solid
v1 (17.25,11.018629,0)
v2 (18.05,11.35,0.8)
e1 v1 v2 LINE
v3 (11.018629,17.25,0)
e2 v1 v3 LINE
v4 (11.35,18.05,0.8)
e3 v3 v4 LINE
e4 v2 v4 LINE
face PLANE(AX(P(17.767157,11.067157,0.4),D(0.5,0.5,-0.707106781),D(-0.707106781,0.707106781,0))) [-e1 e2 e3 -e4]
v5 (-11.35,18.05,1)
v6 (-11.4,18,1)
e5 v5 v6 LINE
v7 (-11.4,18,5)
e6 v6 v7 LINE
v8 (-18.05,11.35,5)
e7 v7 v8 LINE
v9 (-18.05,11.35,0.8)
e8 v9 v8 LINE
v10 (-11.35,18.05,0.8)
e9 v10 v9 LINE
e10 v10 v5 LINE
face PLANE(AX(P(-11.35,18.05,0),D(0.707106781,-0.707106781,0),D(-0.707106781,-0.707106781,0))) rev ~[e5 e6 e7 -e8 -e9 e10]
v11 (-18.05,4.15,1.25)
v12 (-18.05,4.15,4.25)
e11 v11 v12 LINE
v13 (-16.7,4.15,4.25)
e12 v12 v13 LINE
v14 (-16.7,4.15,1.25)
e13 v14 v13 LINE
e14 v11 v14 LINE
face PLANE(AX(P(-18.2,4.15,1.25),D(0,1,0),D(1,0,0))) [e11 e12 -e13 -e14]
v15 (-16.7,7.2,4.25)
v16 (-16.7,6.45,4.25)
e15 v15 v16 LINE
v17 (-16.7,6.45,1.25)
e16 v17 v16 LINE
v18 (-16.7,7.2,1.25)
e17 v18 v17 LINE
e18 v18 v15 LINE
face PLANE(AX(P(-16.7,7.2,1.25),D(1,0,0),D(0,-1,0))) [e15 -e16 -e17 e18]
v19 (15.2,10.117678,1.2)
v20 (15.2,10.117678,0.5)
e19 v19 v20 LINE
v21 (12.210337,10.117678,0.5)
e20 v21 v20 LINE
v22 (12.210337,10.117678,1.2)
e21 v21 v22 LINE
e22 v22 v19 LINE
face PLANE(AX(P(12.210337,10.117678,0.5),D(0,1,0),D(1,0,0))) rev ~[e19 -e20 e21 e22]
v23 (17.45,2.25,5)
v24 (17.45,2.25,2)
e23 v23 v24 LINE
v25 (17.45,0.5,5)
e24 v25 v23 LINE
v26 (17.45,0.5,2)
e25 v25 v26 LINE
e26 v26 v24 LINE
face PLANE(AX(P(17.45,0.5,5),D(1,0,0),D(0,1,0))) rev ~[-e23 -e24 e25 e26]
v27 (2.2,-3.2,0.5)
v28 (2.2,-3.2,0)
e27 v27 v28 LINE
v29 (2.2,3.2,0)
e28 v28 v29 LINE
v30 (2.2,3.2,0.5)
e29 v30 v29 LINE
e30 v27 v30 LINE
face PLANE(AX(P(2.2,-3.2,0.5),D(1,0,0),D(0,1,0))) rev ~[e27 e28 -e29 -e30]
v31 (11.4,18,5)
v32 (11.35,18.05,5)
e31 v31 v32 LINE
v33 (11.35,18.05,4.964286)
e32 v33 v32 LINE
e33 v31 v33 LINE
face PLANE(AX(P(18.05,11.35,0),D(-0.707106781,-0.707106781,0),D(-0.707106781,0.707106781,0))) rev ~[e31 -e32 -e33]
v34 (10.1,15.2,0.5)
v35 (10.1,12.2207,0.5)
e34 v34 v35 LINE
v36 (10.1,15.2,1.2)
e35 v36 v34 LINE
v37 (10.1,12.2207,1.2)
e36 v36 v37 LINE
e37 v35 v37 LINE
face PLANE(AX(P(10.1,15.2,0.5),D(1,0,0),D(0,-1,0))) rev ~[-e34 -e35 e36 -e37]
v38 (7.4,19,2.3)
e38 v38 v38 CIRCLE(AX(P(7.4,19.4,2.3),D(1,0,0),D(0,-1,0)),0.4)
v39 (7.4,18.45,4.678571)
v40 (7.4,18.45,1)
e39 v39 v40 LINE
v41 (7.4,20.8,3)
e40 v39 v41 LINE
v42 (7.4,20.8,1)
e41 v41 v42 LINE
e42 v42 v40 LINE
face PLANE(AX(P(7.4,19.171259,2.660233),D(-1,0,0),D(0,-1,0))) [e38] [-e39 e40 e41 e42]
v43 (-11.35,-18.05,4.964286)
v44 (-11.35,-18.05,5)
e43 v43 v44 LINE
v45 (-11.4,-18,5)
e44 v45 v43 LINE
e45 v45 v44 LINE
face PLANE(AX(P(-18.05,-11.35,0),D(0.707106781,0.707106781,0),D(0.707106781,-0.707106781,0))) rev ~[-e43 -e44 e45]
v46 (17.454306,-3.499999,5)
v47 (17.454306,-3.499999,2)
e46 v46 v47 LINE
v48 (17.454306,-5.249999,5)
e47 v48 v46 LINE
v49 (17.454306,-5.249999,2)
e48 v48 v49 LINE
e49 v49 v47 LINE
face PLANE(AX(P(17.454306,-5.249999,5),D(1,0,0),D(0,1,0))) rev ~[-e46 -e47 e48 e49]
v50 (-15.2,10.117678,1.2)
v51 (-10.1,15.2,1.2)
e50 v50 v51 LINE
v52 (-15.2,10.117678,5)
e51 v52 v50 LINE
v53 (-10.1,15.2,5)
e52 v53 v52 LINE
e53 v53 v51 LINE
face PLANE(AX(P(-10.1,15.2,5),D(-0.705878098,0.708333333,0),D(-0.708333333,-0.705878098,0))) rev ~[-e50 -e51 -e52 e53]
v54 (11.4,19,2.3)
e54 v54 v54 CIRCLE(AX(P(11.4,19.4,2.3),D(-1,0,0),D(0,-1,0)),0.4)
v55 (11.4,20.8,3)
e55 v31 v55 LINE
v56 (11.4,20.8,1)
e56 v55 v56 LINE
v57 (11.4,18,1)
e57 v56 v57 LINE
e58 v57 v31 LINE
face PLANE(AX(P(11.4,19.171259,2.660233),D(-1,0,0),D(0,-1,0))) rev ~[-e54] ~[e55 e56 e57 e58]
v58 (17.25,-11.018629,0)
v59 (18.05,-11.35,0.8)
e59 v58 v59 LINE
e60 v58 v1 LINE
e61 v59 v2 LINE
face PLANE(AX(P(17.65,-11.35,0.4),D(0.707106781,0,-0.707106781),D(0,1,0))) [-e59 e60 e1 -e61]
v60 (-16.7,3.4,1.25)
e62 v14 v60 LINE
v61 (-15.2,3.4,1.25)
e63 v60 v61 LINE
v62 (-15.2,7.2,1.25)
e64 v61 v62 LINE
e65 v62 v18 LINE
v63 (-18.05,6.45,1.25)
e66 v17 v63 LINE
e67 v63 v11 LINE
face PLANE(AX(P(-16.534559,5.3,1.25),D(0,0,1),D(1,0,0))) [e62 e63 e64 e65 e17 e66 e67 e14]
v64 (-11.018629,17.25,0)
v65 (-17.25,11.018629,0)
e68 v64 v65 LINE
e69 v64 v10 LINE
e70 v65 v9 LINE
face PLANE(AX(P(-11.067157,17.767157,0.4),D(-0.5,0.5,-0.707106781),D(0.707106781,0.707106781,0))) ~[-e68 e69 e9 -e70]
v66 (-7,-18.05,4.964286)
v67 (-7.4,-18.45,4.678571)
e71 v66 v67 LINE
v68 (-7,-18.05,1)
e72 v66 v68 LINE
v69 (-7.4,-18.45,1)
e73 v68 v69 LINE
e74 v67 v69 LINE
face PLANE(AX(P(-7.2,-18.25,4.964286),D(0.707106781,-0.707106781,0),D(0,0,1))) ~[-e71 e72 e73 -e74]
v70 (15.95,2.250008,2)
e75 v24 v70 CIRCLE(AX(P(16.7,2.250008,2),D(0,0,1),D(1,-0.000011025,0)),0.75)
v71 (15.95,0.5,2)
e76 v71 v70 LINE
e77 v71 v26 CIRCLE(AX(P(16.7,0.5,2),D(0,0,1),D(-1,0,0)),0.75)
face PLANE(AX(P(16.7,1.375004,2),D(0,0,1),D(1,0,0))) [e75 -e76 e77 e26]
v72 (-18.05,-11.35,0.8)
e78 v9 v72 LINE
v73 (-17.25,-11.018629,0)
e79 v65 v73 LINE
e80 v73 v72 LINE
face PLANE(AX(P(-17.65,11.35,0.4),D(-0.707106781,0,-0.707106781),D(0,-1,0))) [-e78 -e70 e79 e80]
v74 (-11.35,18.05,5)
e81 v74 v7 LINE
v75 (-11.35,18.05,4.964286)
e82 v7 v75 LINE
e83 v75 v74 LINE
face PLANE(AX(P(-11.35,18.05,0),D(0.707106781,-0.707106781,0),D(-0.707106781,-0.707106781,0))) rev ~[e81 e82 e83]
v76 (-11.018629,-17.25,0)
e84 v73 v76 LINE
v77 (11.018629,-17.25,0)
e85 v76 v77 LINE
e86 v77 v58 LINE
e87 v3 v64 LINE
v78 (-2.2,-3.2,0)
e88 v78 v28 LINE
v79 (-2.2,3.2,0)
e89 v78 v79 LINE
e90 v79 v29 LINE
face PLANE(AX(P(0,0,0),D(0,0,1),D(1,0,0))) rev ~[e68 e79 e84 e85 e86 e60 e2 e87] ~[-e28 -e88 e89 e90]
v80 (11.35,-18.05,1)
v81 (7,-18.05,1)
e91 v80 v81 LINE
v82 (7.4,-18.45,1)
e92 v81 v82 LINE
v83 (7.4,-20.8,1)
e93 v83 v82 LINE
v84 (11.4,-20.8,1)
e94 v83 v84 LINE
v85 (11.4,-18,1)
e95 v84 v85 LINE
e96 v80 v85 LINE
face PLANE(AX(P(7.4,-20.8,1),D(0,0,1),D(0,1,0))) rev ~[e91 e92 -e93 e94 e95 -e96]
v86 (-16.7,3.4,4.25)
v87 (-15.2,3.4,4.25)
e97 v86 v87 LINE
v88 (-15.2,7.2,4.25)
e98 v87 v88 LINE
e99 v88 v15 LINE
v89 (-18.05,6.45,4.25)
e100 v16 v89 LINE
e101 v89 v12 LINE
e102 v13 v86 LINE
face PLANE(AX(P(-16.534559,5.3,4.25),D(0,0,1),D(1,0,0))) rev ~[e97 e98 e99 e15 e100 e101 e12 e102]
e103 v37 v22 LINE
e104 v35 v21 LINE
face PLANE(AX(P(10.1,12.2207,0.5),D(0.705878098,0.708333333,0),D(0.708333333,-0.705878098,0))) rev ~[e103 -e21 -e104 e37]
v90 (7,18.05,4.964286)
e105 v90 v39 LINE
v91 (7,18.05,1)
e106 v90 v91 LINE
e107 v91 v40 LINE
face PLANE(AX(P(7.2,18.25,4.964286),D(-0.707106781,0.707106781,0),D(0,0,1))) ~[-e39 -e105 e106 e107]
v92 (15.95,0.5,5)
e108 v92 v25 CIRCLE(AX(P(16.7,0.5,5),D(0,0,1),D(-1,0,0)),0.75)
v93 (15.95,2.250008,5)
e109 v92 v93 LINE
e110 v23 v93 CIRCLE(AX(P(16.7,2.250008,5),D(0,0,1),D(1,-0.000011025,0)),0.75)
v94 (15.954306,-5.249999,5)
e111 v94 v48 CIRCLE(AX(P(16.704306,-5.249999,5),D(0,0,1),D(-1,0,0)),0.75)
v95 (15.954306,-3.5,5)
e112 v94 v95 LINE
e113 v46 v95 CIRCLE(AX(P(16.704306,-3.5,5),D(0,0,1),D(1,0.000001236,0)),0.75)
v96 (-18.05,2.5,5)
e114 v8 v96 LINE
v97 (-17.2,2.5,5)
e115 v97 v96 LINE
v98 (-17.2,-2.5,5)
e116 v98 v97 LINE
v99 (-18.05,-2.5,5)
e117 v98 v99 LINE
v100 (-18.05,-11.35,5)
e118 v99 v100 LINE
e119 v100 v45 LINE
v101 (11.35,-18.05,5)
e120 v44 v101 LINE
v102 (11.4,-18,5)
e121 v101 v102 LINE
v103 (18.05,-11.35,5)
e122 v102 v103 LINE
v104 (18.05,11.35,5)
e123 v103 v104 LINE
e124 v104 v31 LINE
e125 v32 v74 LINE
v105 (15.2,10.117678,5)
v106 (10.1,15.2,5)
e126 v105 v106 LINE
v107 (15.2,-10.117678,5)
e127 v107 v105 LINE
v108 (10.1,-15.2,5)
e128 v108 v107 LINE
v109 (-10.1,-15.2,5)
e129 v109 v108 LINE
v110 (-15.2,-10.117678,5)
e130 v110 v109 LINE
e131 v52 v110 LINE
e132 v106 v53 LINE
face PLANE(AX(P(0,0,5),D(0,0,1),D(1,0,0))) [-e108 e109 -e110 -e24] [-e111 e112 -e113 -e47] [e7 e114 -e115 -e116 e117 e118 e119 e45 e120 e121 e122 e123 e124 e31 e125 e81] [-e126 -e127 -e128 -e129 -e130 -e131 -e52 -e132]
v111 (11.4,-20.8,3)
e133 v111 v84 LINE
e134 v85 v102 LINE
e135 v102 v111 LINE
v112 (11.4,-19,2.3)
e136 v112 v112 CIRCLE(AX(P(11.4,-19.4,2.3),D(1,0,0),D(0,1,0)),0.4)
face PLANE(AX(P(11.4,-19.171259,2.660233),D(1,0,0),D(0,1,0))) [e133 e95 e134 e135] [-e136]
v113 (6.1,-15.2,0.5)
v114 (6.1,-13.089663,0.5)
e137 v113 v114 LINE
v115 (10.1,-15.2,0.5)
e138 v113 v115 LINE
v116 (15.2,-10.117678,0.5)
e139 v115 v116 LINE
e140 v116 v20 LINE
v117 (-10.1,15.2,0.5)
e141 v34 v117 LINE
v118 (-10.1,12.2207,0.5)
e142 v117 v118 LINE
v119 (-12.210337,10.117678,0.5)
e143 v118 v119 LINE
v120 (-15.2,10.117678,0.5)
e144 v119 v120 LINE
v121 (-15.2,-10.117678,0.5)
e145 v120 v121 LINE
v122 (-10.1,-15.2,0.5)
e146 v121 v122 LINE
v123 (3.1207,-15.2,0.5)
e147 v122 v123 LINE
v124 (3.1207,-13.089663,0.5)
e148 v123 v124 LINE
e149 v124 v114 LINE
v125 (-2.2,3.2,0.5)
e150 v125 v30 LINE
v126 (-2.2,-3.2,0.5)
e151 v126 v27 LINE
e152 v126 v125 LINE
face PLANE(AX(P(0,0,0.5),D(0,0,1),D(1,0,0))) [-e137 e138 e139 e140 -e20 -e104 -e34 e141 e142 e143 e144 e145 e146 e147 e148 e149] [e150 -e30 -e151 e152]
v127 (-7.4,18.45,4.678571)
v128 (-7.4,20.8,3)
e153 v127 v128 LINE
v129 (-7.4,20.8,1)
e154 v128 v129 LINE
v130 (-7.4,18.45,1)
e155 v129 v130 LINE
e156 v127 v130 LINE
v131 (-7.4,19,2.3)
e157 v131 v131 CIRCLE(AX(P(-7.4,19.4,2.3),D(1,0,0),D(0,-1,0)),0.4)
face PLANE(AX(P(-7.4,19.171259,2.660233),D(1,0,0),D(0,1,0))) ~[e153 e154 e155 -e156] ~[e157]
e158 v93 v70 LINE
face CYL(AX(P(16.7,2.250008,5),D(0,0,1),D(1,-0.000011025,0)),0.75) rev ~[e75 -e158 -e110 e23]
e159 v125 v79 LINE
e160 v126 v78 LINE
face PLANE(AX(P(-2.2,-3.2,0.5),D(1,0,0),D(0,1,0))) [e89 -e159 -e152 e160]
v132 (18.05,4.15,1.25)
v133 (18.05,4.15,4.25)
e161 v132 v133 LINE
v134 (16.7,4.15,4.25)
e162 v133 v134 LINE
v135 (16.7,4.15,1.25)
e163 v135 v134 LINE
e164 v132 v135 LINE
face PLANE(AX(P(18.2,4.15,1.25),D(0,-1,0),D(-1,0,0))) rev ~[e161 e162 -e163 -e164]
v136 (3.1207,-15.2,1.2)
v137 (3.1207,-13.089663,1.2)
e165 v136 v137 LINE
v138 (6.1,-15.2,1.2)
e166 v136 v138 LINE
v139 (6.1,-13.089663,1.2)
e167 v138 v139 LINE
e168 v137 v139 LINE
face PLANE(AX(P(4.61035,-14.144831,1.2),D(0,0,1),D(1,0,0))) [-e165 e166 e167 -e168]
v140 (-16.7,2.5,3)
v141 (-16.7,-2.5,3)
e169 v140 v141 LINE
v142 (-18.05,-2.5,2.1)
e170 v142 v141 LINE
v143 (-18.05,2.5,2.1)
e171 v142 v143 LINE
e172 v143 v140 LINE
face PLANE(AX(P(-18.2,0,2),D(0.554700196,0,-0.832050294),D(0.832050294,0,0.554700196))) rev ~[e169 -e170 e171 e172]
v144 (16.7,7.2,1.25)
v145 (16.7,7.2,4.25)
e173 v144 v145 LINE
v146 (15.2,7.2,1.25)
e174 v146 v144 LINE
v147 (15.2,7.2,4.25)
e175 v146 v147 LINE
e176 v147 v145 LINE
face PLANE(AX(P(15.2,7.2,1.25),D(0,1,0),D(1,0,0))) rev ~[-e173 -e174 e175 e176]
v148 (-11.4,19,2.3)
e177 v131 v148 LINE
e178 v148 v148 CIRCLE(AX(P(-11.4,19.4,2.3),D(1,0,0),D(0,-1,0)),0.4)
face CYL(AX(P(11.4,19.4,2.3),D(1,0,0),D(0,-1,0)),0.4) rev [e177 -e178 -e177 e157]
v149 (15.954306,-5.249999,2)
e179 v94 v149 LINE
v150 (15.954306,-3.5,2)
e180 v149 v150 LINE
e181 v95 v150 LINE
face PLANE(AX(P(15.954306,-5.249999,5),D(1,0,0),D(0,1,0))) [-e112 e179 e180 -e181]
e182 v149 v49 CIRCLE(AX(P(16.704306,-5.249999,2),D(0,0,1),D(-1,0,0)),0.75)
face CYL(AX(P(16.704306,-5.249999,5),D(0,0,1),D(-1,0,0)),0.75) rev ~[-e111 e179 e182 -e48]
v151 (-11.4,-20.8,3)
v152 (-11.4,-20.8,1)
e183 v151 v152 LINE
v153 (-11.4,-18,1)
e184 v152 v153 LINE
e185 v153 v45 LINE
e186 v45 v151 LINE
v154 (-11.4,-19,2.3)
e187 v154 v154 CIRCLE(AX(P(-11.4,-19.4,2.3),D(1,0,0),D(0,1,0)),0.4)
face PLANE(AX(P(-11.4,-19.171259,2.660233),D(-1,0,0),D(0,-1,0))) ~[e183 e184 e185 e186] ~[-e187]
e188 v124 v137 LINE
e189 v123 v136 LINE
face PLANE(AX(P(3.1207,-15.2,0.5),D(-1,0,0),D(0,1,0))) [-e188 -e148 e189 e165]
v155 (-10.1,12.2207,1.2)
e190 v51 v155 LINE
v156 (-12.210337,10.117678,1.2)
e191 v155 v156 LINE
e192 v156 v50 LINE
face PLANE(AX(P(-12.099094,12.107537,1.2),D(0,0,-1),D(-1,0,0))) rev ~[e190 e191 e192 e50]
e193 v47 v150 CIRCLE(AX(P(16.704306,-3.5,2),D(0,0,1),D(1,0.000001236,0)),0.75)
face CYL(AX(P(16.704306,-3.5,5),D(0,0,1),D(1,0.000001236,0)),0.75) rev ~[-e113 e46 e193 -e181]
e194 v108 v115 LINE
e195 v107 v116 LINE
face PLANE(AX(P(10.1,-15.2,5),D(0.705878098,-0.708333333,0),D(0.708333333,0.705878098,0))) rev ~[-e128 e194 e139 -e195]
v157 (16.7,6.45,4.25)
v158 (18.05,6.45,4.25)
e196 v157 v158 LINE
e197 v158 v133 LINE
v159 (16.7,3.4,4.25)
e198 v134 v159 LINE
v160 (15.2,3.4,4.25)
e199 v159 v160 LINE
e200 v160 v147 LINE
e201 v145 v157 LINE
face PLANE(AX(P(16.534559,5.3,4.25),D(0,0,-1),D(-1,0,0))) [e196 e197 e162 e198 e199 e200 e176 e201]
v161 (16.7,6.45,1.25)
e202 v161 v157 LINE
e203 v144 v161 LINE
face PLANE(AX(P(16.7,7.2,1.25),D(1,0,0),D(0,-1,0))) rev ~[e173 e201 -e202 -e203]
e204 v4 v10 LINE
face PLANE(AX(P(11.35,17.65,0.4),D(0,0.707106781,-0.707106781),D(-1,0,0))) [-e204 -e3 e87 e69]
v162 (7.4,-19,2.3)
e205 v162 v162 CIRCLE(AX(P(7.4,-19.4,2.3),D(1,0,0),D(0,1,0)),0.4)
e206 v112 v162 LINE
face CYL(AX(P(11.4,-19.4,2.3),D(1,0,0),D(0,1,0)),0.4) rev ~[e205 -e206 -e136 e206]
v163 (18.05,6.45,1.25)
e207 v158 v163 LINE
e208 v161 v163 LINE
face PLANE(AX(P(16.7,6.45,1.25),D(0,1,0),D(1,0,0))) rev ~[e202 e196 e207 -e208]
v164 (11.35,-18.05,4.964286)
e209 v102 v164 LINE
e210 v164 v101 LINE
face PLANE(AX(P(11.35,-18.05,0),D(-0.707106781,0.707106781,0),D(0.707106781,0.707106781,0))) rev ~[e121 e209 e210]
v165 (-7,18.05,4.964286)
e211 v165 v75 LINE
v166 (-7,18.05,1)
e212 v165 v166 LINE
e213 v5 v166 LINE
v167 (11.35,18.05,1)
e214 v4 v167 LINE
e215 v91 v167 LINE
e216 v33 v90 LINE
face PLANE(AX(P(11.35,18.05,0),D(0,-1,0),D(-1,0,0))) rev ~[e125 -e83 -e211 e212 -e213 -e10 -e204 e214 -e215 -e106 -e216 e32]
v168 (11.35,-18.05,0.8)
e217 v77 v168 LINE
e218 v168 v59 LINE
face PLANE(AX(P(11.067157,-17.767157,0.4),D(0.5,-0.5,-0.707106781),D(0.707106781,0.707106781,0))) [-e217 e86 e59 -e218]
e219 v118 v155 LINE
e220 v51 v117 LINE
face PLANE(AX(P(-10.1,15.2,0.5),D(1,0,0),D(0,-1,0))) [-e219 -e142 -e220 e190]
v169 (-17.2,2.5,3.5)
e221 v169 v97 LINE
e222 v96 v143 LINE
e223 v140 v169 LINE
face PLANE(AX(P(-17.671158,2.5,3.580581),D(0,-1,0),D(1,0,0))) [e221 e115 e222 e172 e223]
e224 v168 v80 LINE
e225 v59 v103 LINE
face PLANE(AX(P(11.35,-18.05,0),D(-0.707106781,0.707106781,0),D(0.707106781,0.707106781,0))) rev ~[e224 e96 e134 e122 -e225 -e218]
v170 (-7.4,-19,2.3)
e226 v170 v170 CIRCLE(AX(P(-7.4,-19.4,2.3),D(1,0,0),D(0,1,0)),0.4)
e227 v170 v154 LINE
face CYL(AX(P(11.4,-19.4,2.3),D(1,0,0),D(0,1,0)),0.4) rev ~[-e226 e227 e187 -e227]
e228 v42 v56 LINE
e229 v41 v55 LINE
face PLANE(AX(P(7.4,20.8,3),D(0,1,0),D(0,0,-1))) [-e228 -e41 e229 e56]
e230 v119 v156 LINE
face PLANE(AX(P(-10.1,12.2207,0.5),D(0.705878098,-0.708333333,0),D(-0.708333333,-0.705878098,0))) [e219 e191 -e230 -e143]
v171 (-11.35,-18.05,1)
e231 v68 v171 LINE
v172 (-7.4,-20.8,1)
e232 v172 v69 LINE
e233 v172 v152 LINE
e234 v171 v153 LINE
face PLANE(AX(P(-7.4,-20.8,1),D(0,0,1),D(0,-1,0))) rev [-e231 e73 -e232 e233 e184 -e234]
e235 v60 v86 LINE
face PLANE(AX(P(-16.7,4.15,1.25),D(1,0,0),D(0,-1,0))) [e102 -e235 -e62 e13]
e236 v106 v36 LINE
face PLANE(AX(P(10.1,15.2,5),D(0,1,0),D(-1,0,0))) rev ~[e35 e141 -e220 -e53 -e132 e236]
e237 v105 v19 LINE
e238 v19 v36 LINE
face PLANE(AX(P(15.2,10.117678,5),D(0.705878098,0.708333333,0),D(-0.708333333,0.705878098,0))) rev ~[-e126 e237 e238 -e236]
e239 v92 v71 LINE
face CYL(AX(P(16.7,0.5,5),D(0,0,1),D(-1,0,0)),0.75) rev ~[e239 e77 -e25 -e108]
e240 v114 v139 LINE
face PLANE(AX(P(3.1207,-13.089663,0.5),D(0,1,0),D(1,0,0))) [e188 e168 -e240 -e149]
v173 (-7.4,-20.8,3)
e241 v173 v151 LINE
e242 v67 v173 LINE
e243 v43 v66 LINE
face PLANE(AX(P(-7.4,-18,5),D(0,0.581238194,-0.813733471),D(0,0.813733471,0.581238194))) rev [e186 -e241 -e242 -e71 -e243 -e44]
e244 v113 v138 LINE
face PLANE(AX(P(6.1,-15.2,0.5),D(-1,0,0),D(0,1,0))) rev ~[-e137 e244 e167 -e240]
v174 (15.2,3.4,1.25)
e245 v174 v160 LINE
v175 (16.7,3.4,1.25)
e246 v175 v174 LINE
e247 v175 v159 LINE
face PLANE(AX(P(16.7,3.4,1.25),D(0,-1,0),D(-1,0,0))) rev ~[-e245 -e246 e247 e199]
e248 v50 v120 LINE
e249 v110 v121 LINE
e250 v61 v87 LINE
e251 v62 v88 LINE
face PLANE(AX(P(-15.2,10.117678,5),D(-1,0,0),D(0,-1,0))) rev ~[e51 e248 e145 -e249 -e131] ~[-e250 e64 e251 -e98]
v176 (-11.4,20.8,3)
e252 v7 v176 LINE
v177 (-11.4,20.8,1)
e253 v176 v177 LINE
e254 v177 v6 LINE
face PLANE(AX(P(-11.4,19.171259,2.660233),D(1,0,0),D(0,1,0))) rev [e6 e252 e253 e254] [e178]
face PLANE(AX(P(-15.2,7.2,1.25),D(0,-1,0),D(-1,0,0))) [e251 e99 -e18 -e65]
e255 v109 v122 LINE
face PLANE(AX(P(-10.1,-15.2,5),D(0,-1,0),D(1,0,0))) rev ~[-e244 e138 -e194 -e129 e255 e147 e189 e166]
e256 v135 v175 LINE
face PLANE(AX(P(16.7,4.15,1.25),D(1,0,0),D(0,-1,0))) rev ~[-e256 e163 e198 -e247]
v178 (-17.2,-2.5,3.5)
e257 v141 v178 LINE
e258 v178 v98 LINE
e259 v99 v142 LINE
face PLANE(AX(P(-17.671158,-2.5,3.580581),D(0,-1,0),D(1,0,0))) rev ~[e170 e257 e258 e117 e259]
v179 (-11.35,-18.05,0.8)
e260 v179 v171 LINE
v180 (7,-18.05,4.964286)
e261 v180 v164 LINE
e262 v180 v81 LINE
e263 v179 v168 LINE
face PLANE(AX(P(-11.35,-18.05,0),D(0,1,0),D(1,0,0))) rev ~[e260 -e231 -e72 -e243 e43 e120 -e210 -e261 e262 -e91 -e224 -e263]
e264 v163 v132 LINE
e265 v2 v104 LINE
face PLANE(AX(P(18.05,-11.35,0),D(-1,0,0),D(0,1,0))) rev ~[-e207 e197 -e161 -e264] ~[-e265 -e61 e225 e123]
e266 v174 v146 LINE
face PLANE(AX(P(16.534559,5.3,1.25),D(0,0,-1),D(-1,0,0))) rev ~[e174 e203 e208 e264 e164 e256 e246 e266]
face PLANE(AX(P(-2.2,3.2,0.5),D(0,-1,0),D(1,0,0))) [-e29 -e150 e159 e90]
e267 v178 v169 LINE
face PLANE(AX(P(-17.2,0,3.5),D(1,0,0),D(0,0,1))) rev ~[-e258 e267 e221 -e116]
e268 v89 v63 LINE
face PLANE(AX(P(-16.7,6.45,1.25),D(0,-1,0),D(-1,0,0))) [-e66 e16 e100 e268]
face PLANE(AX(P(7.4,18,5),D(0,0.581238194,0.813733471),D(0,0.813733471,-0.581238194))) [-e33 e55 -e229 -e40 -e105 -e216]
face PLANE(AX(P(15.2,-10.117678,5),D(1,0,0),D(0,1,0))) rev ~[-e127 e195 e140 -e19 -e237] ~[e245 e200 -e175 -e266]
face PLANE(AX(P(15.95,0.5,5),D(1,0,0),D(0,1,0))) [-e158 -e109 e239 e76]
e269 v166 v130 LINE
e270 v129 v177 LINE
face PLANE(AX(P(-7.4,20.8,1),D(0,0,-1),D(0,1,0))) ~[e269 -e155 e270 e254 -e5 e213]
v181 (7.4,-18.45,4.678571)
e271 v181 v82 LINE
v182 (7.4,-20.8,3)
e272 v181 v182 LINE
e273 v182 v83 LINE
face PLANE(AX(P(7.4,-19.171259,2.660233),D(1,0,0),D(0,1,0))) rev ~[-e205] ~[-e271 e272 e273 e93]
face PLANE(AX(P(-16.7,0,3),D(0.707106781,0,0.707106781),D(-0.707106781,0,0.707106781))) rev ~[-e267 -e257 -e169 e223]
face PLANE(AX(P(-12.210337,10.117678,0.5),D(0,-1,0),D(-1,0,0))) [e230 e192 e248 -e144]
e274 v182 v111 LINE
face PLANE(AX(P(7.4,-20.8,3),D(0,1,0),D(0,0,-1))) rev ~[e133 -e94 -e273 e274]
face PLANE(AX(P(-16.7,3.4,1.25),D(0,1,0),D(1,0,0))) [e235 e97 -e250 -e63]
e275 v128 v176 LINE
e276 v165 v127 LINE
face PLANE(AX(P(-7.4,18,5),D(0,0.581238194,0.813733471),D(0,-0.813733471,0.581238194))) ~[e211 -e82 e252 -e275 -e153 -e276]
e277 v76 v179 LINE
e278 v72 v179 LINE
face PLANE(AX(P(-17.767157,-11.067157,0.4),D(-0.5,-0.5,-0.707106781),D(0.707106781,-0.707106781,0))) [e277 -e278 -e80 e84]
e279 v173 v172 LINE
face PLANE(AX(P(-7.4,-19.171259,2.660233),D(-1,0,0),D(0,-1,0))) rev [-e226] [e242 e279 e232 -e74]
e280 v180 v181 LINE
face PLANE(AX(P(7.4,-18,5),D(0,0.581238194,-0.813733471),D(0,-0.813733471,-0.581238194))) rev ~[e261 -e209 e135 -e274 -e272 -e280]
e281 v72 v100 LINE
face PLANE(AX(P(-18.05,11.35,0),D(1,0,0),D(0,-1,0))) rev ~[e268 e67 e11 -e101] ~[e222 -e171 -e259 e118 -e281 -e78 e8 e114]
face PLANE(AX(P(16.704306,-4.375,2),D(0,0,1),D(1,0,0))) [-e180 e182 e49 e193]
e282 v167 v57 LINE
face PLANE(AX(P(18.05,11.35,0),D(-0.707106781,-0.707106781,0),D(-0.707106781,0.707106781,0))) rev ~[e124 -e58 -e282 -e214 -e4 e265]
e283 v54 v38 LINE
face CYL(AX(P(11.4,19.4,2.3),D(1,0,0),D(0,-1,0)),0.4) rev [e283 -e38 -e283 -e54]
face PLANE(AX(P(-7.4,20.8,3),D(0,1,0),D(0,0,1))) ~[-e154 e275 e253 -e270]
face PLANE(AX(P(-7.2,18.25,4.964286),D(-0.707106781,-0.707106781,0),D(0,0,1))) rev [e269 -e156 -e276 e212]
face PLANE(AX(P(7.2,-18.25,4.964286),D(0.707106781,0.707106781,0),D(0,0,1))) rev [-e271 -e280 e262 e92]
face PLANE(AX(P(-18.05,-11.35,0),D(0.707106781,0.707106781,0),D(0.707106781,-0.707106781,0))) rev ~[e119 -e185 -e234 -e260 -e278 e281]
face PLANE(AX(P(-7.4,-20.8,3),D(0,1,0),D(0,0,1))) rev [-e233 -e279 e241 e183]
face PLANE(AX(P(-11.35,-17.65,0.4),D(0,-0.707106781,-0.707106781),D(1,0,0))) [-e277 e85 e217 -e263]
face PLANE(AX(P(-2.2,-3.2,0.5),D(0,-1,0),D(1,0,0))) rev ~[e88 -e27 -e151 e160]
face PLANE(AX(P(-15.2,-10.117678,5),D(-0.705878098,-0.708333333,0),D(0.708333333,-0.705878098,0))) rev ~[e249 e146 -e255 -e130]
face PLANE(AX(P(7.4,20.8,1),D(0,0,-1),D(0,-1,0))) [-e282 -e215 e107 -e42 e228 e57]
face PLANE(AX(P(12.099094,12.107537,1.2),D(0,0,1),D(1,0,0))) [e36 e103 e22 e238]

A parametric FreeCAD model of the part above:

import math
import FreeCAD as App
import Part
import Sketcher
Q = App.Units.Quantity


def edges_at(feature, points):
    """Names of the edges that pass closest to the given points."""
    edges = feature.Shape.Edges
    near = lambda p: min(range(len(edges)), key=lambda i: edges[i].distToShape(Part.Vertex(*p))[0])
    return sorted({f"Edge{near(p) + 1}" for p in points})

doc = App.newDocument("Part")
body = doc.addObject("PartDesign::Body", "Body")

# Sketch on XY plane
sketch1 = body.newObject("Sketcher::SketchObject", "Sketch")
sketch1.AttachmentSupport = (doc.getObject("XY_Plane"), [""])
sketch1.MapMode = "FlatFace"
sketch1.addGeometry([
    Part.LineSegment(App.Vector(18, 11, 0), App.Vector(11, 18, 0)),  # 0
    Part.LineSegment(App.Vector(11, 18, 0), App.Vector(-11, 18, 0)),  # 1
    Part.LineSegment(App.Vector(-11, 18, 0), App.Vector(-18, 11, 0)),  # 2
    Part.LineSegment(App.Vector(-18, 11, 0), App.Vector(-18, -11, 0)),  # 3
    Part.LineSegment(App.Vector(-18, -11, 0), App.Vector(-11, -18, 0)),  # 4
    Part.LineSegment(App.Vector(-11, -18, 0), App.Vector(11, -18, 0)),  # 5
    Part.LineSegment(App.Vector(11, -18, 0), App.Vector(18, -11, 0)),  # 6
    Part.LineSegment(App.Vector(18, -11, 0), App.Vector(18, 11, 0)),  # 7
], False)
sketch1.addConstraint([
    Sketcher.Constraint("Coincident", 0, 2, 1, 1),
    Sketcher.Constraint("Coincident", 1, 2, 2, 1),
    Sketcher.Constraint("Coincident", 2, 2, 3, 1),
    Sketcher.Constraint("Coincident", 3, 2, 4, 1),
    Sketcher.Constraint("Coincident", 4, 2, 5, 1),
    Sketcher.Constraint("Coincident", 5, 2, 6, 1),
    Sketcher.Constraint("Coincident", 6, 2, 7, 1),
    Sketcher.Constraint("Coincident", 7, 2, 0, 1),
    Sketcher.Constraint("Horizontal", 1),
    Sketcher.Constraint("Vertical", 3),
    Sketcher.Constraint("Horizontal", 5),
    Sketcher.Constraint("Vertical", 7),
    Sketcher.Constraint("Symmetric", 0, 2, 4, 2, -1, 1),
    Sketcher.Constraint("Symmetric", 2, 2, 6, 2, -1, 1),
    Sketcher.Constraint("Perpendicular", 0, 2),
    Sketcher.Constraint("Perpendicular", 2, 4),
    Sketcher.Constraint("Perpendicular", 4, 6),
    Sketcher.Constraint("Horizontal", 3, 2, 6, 2),
    Sketcher.Constraint("Vertical", 1, 2, 4, 2),
    Sketcher.Constraint("Equal", 5, 3),
    Sketcher.Constraint("DistanceX", 1, 2, 1, 1, Q("22.7 mm")),
    Sketcher.Constraint("DistanceX", 2, 2, 1, 2, Q("6.7 mm")),
])
pad1 = body.newObject("PartDesign::Pad", "Pad")
pad1.Profile = sketch1
pad1.Length = 5

# Sketch on XY plane
sketch2 = body.newObject("Sketcher::SketchObject", "Sketch001")
sketch2.AttachmentSupport = (doc.getObject("XY_Plane"), [""])
sketch2.MapMode = "FlatFace"
sketch2.AttachmentOffset = App.Placement(App.Vector(0, 0, 5), App.Rotation())
sketch2.addGeometry([
    Part.LineSegment(App.Vector(-15, 10, 0), App.Vector(-15, -10, 0)),  # 0
    Part.LineSegment(App.Vector(-15, -10, 0), App.Vector(-10, -15, 0)),  # 1
    Part.LineSegment(App.Vector(-10, -15, 0), App.Vector(10, -15, 0)),  # 2
    Part.LineSegment(App.Vector(10, -15, 0), App.Vector(15, -10, 0)),  # 3
    Part.LineSegment(App.Vector(15, -10, 0), App.Vector(15, 10, 0)),  # 4
    Part.LineSegment(App.Vector(15, 10, 0), App.Vector(10, 15, 0)),  # 5
    Part.LineSegment(App.Vector(10, 15, 0), App.Vector(-10, 15, 0)),  # 6
    Part.LineSegment(App.Vector(-10, 15, 0), App.Vector(-15, 10, 0)),  # 7
], False)
sketch2.addConstraint([
    Sketcher.Constraint("Coincident", 0, 2, 1, 1),
    Sketcher.Constraint("Coincident", 1, 2, 2, 1),
    Sketcher.Constraint("Coincident", 2, 2, 3, 1),
    Sketcher.Constraint("Coincident", 3, 2, 4, 1),
    Sketcher.Constraint("Coincident", 4, 2, 5, 1),
    Sketcher.Constraint("Coincident", 5, 2, 6, 1),
    Sketcher.Constraint("Coincident", 6, 2, 7, 1),
    Sketcher.Constraint("Coincident", 7, 2, 0, 1),
    Sketcher.Constraint("Vertical", 0),
    Sketcher.Constraint("Horizontal", 2),
    Sketcher.Constraint("Vertical", 4),
    Sketcher.Constraint("Horizontal", 6),
    Sketcher.Constraint("Symmetric", 0, 2, 4, 2, -1, 1),
    Sketcher.Constraint("Symmetric", 1, 2, 5, 2, -1, 1),
    Sketcher.Constraint("Parallel", 3, 7),
    Sketcher.Constraint("Horizontal", 0, 2, 3, 2),
    Sketcher.Constraint("Horizontal", 4, 2, 7, 2),
    Sketcher.Constraint("Vertical", 2, 2, 5, 2),
    Sketcher.Constraint("DistanceX", 2, 1, 2, 2, Q("20.2 mm")),
    Sketcher.Constraint("Distance", 1, Q("7.2 mm")),
    Sketcher.Constraint("DistanceX", 0, 2, -1, 1, Q("15.2 mm")),
    Sketcher.Constraint("DistanceY", 1, 2, -1, 1, Q("15.2 mm")),
])
pocket1 = body.newObject("PartDesign::Pocket", "Pocket")
pocket1.Profile = sketch2
pocket1.Length = 4.5

# Sketch on XY plane
sketch3 = body.newObject("Sketcher::SketchObject", "Sketch002")
sketch3.AttachmentSupport = (doc.getObject("XY_Plane"), [""])
sketch3.MapMode = "FlatFace"
sketch3.AttachmentOffset = App.Placement(App.Vector(0, 0, 1.25), App.Rotation())
sketch3.addGeometry([
    Part.LineSegment(App.Vector(15.2, 7.2, 0), App.Vector(15.2, 3.4, 0)),  # 0
    Part.LineSegment(App.Vector(15.2, 3.4, 0), App.Vector(16.7, 3.4, 0)),  # 1
    Part.LineSegment(App.Vector(16.7, 3.4, 0), App.Vector(16.7, 4.2, 0)),  # 2
    Part.LineSegment(App.Vector(16.7, 4.2, 0), App.Vector(18.2, 4.2, 0)),  # 3
    Part.LineSegment(App.Vector(18.2, 4.2, 0), App.Vector(18.2, 6.5, 0)),  # 4
    Part.LineSegment(App.Vector(18.2, 6.5, 0), App.Vector(16.7, 6.5, 0)),  # 5
    Part.LineSegment(App.Vector(16.7, 6.5, 0), App.Vector(16.7, 7.2, 0)),  # 6
    Part.LineSegment(App.Vector(16.7, 7.2, 0), App.Vector(15.2, 7.2, 0)),  # 7
    Part.LineSegment(App.Vector(-15.2, 3.4, 0), App.Vector(-15.2, 7.2, 0)),  # 8
    Part.LineSegment(App.Vector(-15.2, 7.2, 0), App.Vector(-16.7, 7.2, 0)),  # 9
    Part.LineSegment(App.Vector(-16.7, 7.2, 0), App.Vector(-16.7, 6.5, 0)),  # 10
    Part.LineSegment(App.Vector(-16.7, 6.5, 0), App.Vector(-18.2, 6.5, 0)),  # 11
    Part.LineSegment(App.Vector(-18.2, 6.5, 0), App.Vector(-18.2, 4.2, 0)),  # 12
    Part.LineSegment(App.Vector(-18.2, 4.2, 0), App.Vector(-16.7, 4.2, 0)),  # 13
    Part.LineSegment(App.Vector(-16.7, 4.2, 0), App.Vector(-16.7, 3.4, 0)),  # 14
    Part.LineSegment(App.Vector(-16.7, 3.4, 0), App.Vector(-15.2, 3.4, 0)),  # 15
], False)
sketch3.addConstraint([
    Sketcher.Constraint("Coincident", 0, 2, 1, 1),
    Sketcher.Constraint("Coincident", 1, 2, 2, 1),
    Sketcher.Constraint("Coincident", 2, 2, 3, 1),
    Sketcher.Constraint("Coincident", 3, 2, 4, 1),
    Sketcher.Constraint("Coincident", 4, 2, 5, 1),
    Sketcher.Constraint("Coincident", 5, 2, 6, 1),
    Sketcher.Constraint("Coincident", 6, 2, 7, 1),
    Sketcher.Constraint("Coincident", 7, 2, 0, 1),
    Sketcher.Constraint("Coincident", 8, 2, 9, 1),
    Sketcher.Constraint("Coincident", 9, 2, 10, 1),
    Sketcher.Constraint("Coincident", 10, 2, 11, 1),
    Sketcher.Constraint("Coincident", 11, 2, 12, 1),
    Sketcher.Constraint("Coincident", 12, 2, 13, 1),
    Sketcher.Constraint("Coincident", 13, 2, 14, 1),
    Sketcher.Constraint("Coincident", 14, 2, 15, 1),
    Sketcher.Constraint("Coincident", 15, 2, 8, 1),
    Sketcher.Constraint("Vertical", 0),
    Sketcher.Constraint("Horizontal", 1),
    Sketcher.Constraint("Vertical", 2),
    Sketcher.Constraint("Horizontal", 3),
    Sketcher.Constraint("Vertical", 4),
    Sketcher.Constraint("Horizontal", 5),
    Sketcher.Constraint("Vertical", 6),
    Sketcher.Constraint("Horizontal", 7),
    Sketcher.Constraint("Vertical", 8),
    Sketcher.Constraint("Horizontal", 9),
    Sketcher.Constraint("Vertical", 10),
    Sketcher.Constraint("Horizontal", 11),
    Sketcher.Constraint("Vertical", 12),
    Sketcher.Constraint("Horizontal", 13),
    Sketcher.Constraint("Vertical", 14),
    Sketcher.Constraint("Horizontal", 15),
    Sketcher.Constraint("Symmetric", 7, 2, 8, 2, -2),
    Sketcher.Constraint("Symmetric", 5, 2, 10, 2, -2),
    Sketcher.Constraint("Symmetric", 3, 2, 12, 2, -2),
    Sketcher.Constraint("Symmetric", 1, 2, 14, 2, -2),
    Sketcher.Constraint("Vertical", 2, 2, 5, 2),
    Sketcher.Constraint("Equal", 1, 3),
    Sketcher.Constraint("Equal", 2, 6),
    Sketcher.Constraint("DistanceX", 1, 1, 1, 2, Q("1.5 mm")),
    Sketcher.Constraint("DistanceY", 0, 2, 0, 1, Q("3.8 mm")),
    Sketcher.Constraint("DistanceY", 4, 1, 4, 2, Q("2.3 mm")),
    Sketcher.Constraint("DistanceX", -1, 1, 0, 2, Q("15.2 mm")),
    Sketcher.Constraint("DistanceY", -1, 1, 0, 2, Q("3.4 mm")),
])
pocket2 = body.newObject("PartDesign::Pocket", "Pocket001")
pocket2.Profile = sketch3
pocket2.Length = 3
pocket2.Reversed = True

# Sketch on XY plane
sketch4 = body.newObject("Sketcher::SketchObject", "Sketch003")
sketch4.AttachmentSupport = (doc.getObject("XY_Plane"), [""])
sketch4.MapMode = "FlatFace"
sketch4.AttachmentOffset = App.Placement(App.Vector(0, 0, 0.5), App.Rotation())
sketch4.addGeometry([
    Part.LineSegment(App.Vector(-10.1, 12.2, 0), App.Vector(-10.1, 15.2, 0)),  # 0
    Part.LineSegment(App.Vector(-10.1, 15.2, 0), App.Vector(-15.2, 10.1, 0)),  # 1
    Part.LineSegment(App.Vector(-15.2, 10.1, 0), App.Vector(-12.2, 10.1, 0)),  # 2
    Part.LineSegment(App.Vector(-12.2, 10.1, 0), App.Vector(-10.1, 12.2, 0)),  # 3
    Part.LineSegment(App.Vector(12.2, 10.1, 0), App.Vector(15.2, 10.1, 0)),  # 4
    Part.LineSegment(App.Vector(15.2, 10.1, 0), App.Vector(10.1, 15.2, 0)),  # 5
    Part.LineSegment(App.Vector(10.1, 15.2, 0), App.Vector(10.1, 12.2, 0)),  # 6
    Part.LineSegment(App.Vector(10.1, 12.2, 0), App.Vector(12.2, 10.1, 0)),  # 7
    Part.LineSegment(App.Vector(3.1, -13.1, 0), App.Vector(3.1, -15.2, 0)),  # 8
    Part.LineSegment(App.Vector(3.1, -15.2, 0), App.Vector(6.1, -15.2, 0)),  # 9
    Part.LineSegment(App.Vector(6.1, -15.2, 0), App.Vector(6.1, -13.1, 0)),  # 10
    Part.LineSegment(App.Vector(6.1, -13.1, 0), App.Vector(3.1, -13.1, 0)),  # 11
], False)
sketch4.addConstraint([
    Sketcher.Constraint("Coincident", 0, 2, 1, 1),
    Sketcher.Constraint("Coincident", 1, 2, 2, 1),
    Sketcher.Constraint("Coincident", 2, 2, 3, 1),
    Sketcher.Constraint("Coincident", 3, 2, 0, 1),
    Sketcher.Constraint("Coincident", 4, 2, 5, 1),
    Sketcher.Constraint("Coincident", 5, 2, 6, 1),
    Sketcher.Constraint("Coincident", 6, 2, 7, 1),
    Sketcher.Constraint("Coincident", 7, 2, 4, 1),
    Sketcher.Constraint("Coincident", 8, 2, 9, 1),
    Sketcher.Constraint("Coincident", 9, 2, 10, 1),
    Sketcher.Constraint("Coincident", 10, 2, 11, 1),
    Sketcher.Constraint("Coincident", 11, 2, 8, 1),
    Sketcher.Constraint("Vertical", 0),
    Sketcher.Constraint("Horizontal", 2),
    Sketcher.Constraint("Horizontal", 4),
    Sketcher.Constraint("Vertical", 6),
    Sketcher.Constraint("Vertical", 8),
    Sketcher.Constraint("Horizontal", 9),
    Sketcher.Constraint("Vertical", 10),
    Sketcher.Constraint("Horizontal", 11),
    Sketcher.Constraint("Symmetric", 1, 2, 4, 2, -2),
    Sketcher.Constraint("Symmetric", 0, 2, 5, 2, -2),
    Sketcher.Constraint("Parallel", 1, 3),
    Sketcher.Constraint("Parallel", 5, 7),
    Sketcher.Constraint("Horizontal", 3, 2, 6, 2),
    Sketcher.Constraint("Equal", 11, 0),
    Sketcher.Constraint("DistanceX", 9, 2, 6, 2, Q("4 mm")),
    Sketcher.Constraint("Distance", 1, Q("7.2 mm")),
    Sketcher.Constraint("DistanceX", 0, 2, -1, 1, Q("10.1 mm")),
    Sketcher.Constraint("DistanceY", -1, 1, 0, 2, Q("15.2 mm")),
    Sketcher.Constraint("DistanceX", 1, 2, -1, 1, Q("15.2 mm")),
    Sketcher.Constraint("DistanceY", 8, 2, -1, 1, Q("15.2 mm")),
    Sketcher.Constraint("DistanceX", 9, 1, 9, 2, Q("2.9793 mm")),
    Sketcher.Constraint("DistanceY", 8, 2, 8, 1, Q("2.110337 mm")),
])
pad2 = body.newObject("PartDesign::Pad", "Pad001")
pad2.Profile = sketch4
pad2.Length = 0.7

# Sketch on XZ plane
sketch5 = body.newObject("Sketcher::SketchObject", "Sketch004")
sketch5.AttachmentSupport = (doc.getObject("XZ_Plane"), [""])
sketch5.MapMode = "FlatFace"
sketch5.addGeometry([
    Part.LineSegment(App.Vector(-18.2, 5, 0), App.Vector(-18.2, 2, 0)),  # 0
    Part.LineSegment(App.Vector(-18.2, 2, 0), App.Vector(-16.7, 3, 0)),  # 1
    Part.LineSegment(App.Vector(-16.7, 3, 0), App.Vector(-17.2, 3.5, 0)),  # 2
    Part.LineSegment(App.Vector(-17.2, 3.5, 0), App.Vector(-17.2, 5, 0)),  # 3
    Part.LineSegment(App.Vector(-17.2, 5, 0), App.Vector(-18.2, 5, 0)),  # 4
], False)
sketch5.addConstraint([
    Sketcher.Constraint("Coincident", 0, 2, 1, 1),
    Sketcher.Constraint("Coincident", 1, 2, 2, 1),
    Sketcher.Constraint("Coincident", 2, 2, 3, 1),
    Sketcher.Constraint("Coincident", 3, 2, 4, 1),
    Sketcher.Constraint("Coincident", 4, 2, 0, 1),
    Sketcher.Constraint("Vertical", 0),
    Sketcher.Constraint("Vertical", 3),
    Sketcher.Constraint("Horizontal", 4),
    Sketcher.Constraint("DistanceX", 4, 2, 4, 1, Q("1 mm")),
    Sketcher.Constraint("DistanceY", 0, 2, 0, 1, Q("3 mm")),
    Sketcher.Constraint("Angle", 2, Q("135 deg")),
    Sketcher.Constraint("DistanceY", 3, 1, 3, 2, Q("1.5 mm")),
    Sketcher.Constraint("DistanceY", -1, 1, 0, 2, Q("2 mm")),
    Sketcher.Constraint("DistanceY", -1, 1, 1, 2, Q("3 mm")),
    Sketcher.Constraint("DistanceX", 0, 2, -1, 1, Q("18.2 mm")),
])
pocket3 = body.newObject("PartDesign::Pocket", "Pocket002")
pocket3.Profile = sketch5
pocket3.Length = 5
pocket3.Midplane = True

# Sketch on XY plane
sketch6 = body.newObject("Sketcher::SketchObject", "Sketch005")
sketch6.AttachmentSupport = (doc.getObject("XY_Plane"), [""])
sketch6.MapMode = "FlatFace"
sketch6.AttachmentOffset = App.Placement(App.Vector(0, 0, 5), App.Rotation())
sketch6.addGeometry([
    Part.ArcOfCircle(Part.Circle(App.Vector(16.7, 0.5, 0), App.Vector(0, 0, 1), 0.8), math.radians(180), math.radians(360)),  # 0
    Part.LineSegment(App.Vector(17.4, 0.5, 0), App.Vector(17.4, 2.2, 0)),  # 1
    Part.ArcOfCircle(Part.Circle(App.Vector(16.7, 2.3, 0), App.Vector(0, 0, 1), 0.8), math.radians(0), math.radians(180)),  # 2
    Part.LineSegment(App.Vector(15.9, 2.3, 0), App.Vector(15.9, 0.5, 0)),  # 3
    Part.ArcOfCircle(Part.Circle(App.Vector(16.7, -5.2, 0), App.Vector(0, 0, 1), 0.8), math.radians(180), math.radians(360)),  # 4
    Part.LineSegment(App.Vector(17.5, -5.2, 0), App.Vector(17.5, -3.5, 0)),  # 5
    Part.ArcOfCircle(Part.Circle(App.Vector(16.7, -3.5, 0), App.Vector(0, 0, 1), 0.8), math.radians(0), math.radians(180)),  # 6
    Part.LineSegment(App.Vector(16, -3.5, 0), App.Vector(16, -5.2, 0)),  # 7
], False)
sketch6.addConstraint([
    Sketcher.Constraint("Tangent", 0, 2, 1, 1),
    Sketcher.Constraint("Coincident", 1, 2, 2, 1),
    Sketcher.Constraint("Tangent", 2, 2, 3, 1),
    Sketcher.Constraint("Tangent", 3, 2, 0, 1),
    Sketcher.Constraint("Tangent", 4, 2, 5, 1),
    Sketcher.Constraint("Tangent", 5, 2, 6, 1),
    Sketcher.Constraint("Tangent", 6, 2, 7, 1),
    Sketcher.Constraint("Tangent", 7, 2, 4, 1),
    Sketcher.Constraint("Vertical", 1),
    Sketcher.Constraint("Vertical", 3),
    Sketcher.Constraint("Vertical", 5),
    Sketcher.Constraint("Vertical", 7),
    Sketcher.Constraint("Equal", 2, 4),
    Sketcher.Constraint("Equal", 1, 5),
    Sketcher.Constraint("Radius", 0, Q("0.75 mm")),
    Sketcher.Constraint("DistanceY", 6, 3, 0, 3, Q("4 mm")),
    Sketcher.Constraint("DistanceY", 1, 1, 1, 2, Q("1.75 mm")),
    Sketcher.Constraint("DistanceX", -1, 1, 0, 3, Q("16.7 mm")),
    Sketcher.Constraint("DistanceY", -1, 1, 0, 3, Q("0.5 mm")),
    Sketcher.Constraint("DistanceY", 3, 2, 3, 1, Q("1.750008 mm")),
    Sketcher.Constraint("DistanceX", -1, 1, 4, 3, Q("16.704306 mm")),
])
pocket4 = body.newObject("PartDesign::Pocket", "Pocket003")
pocket4.Profile = sketch6
pocket4.Length = 3

# Sketch on YZ plane
sketch7 = body.newObject("Sketcher::SketchObject", "Sketch006")
sketch7.AttachmentSupport = (doc.getObject("YZ_Plane"), [""])
sketch7.MapMode = "FlatFace"
sketch7.AttachmentOffset = App.Placement(App.Vector(0, 0, 7.4), App.Rotation())
sketch7.addGeometry([
    Part.LineSegment(App.Vector(-18, 1, 0), App.Vector(-18, 5, 0)),
    Part.LineSegment(App.Vector(-18, 5, 0), App.Vector(-20.8, 3, 0)),
    Part.LineSegment(App.Vector(-20.8, 3, 0), App.Vector(-20.8, 1, 0)),
    Part.LineSegment(App.Vector(-20.8, 1, 0), App.Vector(-18, 1, 0)),
], False)
sketch7.addConstraint([
    Sketcher.Constraint("Coincident", 0, 2, 1, 1),
    Sketcher.Constraint("Coincident", 1, 2, 2, 1),
    Sketcher.Constraint("Coincident", 2, 2, 3, 1),
    Sketcher.Constraint("Coincident", 3, 2, 0, 1),
    Sketcher.Constraint("Vertical", 0),
    Sketcher.Constraint("Vertical", 2),
    Sketcher.Constraint("Horizontal", 3),
    Sketcher.Constraint("DistanceY", 0, 1, 0, 2, Q("4 mm")),
    Sketcher.Constraint("DistanceY", 2, 2, 2, 1, Q("2 mm")),
    Sketcher.Constraint("DistanceX", 3, 1, 3, 2, Q("2.8 mm")),
    Sketcher.Constraint("DistanceX", 0, 2, -1, 1, Q("18 mm")),
    Sketcher.Constraint("DistanceY", -1, 1, 0, 2, Q("5 mm")),
])
pad3 = body.newObject("PartDesign::Pad", "Pad002")
pad3.Profile = sketch7
pad3.Length = 4

# Sketch on YZ plane
sketch8 = body.newObject("Sketcher::SketchObject", "Sketch007")
sketch8.AttachmentSupport = (doc.getObject("YZ_Plane"), [""])
sketch8.MapMode = "FlatFace"
sketch8.AttachmentOffset = App.Placement(App.Vector(0, 0, 7.4), App.Rotation())
sketch8.addGeometry([
    Part.LineSegment(App.Vector(18, 1, 0), App.Vector(18, 5, 0)),
    Part.LineSegment(App.Vector(18, 5, 0), App.Vector(20.8, 3, 0)),
    Part.LineSegment(App.Vector(20.8, 3, 0), App.Vector(20.8, 1, 0)),
    Part.LineSegment(App.Vector(20.8, 1, 0), App.Vector(18, 1, 0)),
], False)
sketch8.addConstraint([
    Sketcher.Constraint("Coincident", 0, 2, 1, 1),
    Sketcher.Constraint("Coincident", 1, 2, 2, 1),
    Sketcher.Constraint("Coincident", 2, 2, 3, 1),
    Sketcher.Constraint("Coincident", 3, 2, 0, 1),
    Sketcher.Constraint("Vertical", 0),
    Sketcher.Constraint("Vertical", 2),
    Sketcher.Constraint("Horizontal", 3),
    Sketcher.Constraint("DistanceY", 0, 1, 0, 2, Q("4 mm")),
    Sketcher.Constraint("DistanceY", 2, 2, 2, 1, Q("2 mm")),
    Sketcher.Constraint("DistanceX", 3, 2, 3, 1, Q("2.8 mm")),
    Sketcher.Constraint("DistanceX", -1, 1, 0, 2, Q("18 mm")),
    Sketcher.Constraint("DistanceY", -1, 1, 0, 2, Q("5 mm")),
])
pad4 = body.newObject("PartDesign::Pad", "Pad003")
pad4.Profile = sketch8
pad4.Length = 4
doc.recompute()

mirrored = body.newObject("PartDesign::Mirrored", "Mirrored")
mirrored.Originals = [pad3, pad4]
mirrored.MirrorPlane = (doc.getObject("YZ_Plane"), [""])
body.Tip = mirrored

# Sketch on YZ plane
sketch9 = body.newObject("Sketcher::SketchObject", "Sketch008")
sketch9.AttachmentSupport = (doc.getObject("YZ_Plane"), [""])
sketch9.MapMode = "FlatFace"
sketch9.AttachmentOffset = App.Placement(App.Vector(0, 0, 11.4), App.Rotation())
sketch9.addGeometry(Part.Circle(App.Vector(-19.4, 2.3, 0), App.Vector(0, 0, 1), 0.4), False)
sketch9.addConstraint([
    Sketcher.Constraint("Diameter", 0, Q("0.8 mm")),
    Sketcher.Constraint("DistanceX", 0, 3, -1, 1, Q("19.4 mm")),
    Sketcher.Constraint("DistanceY", -1, 1, 0, 3, Q("2.3 mm")),
])
pocket5 = body.newObject("PartDesign::Pocket", "Pocket004")
pocket5.Profile = sketch9
pocket5.Type = "ThroughAll"
doc.recompute()

mirrored2 = body.newObject("PartDesign::Mirrored", "Mirrored001")
mirrored2.Originals = [pocket5]
mirrored2.MirrorPlane = (doc.getObject("XZ_Plane"), [""])
body.Tip = mirrored2

# Sketch on XY plane
sketch10 = body.newObject("Sketcher::SketchObject", "Sketch009")
sketch10.AttachmentSupport = (doc.getObject("XY_Plane"), [""])
sketch10.MapMode = "FlatFace"
sketch10.AttachmentOffset = App.Placement(App.Vector(0, 0, 0.5), App.Rotation())
sketch10.addGeometry([
    Part.LineSegment(App.Vector(-2.2, 3.2, 0), App.Vector(-2.2, -3.2, 0)),
    Part.LineSegment(App.Vector(-2.2, -3.2, 0), App.Vector(2.2, -3.2, 0)),
    Part.LineSegment(App.Vector(2.2, -3.2, 0), App.Vector(2.2, 3.2, 0)),
    Part.LineSegment(App.Vector(2.2, 3.2, 0), App.Vector(-2.2, 3.2, 0)),
], False)
sketch10.addConstraint([
    Sketcher.Constraint("Coincident", 0, 2, 1, 1),
    Sketcher.Constraint("Coincident", 1, 2, 2, 1),
    Sketcher.Constraint("Coincident", 2, 2, 3, 1),
    Sketcher.Constraint("Coincident", 3, 2, 0, 1),
    Sketcher.Constraint("Vertical", 0),
    Sketcher.Constraint("Horizontal", 1),
    Sketcher.Constraint("Vertical", 2),
    Sketcher.Constraint("Horizontal", 3),
    Sketcher.Constraint("Symmetric", 0, 2, 2, 2, -1, 1),
    Sketcher.Constraint("DistanceX", 1, 1, 1, 2, Q("4.4 mm")),
    Sketcher.Constraint("DistanceY", 0, 2, 0, 1, Q("6.4 mm")),
])
pocket6 = body.newObject("PartDesign::Pocket", "Pocket005")
pocket6.Profile = sketch10
pocket6.Type = "ThroughAll"
doc.recompute()

chamfer = body.newObject("PartDesign::Chamfer", "Chamfer")
chamfer.Base = (pocket6, edges_at(pocket6, [
    (-14.7, -14.7, 0),
    (-18.05, 0, 0),
    (0, 18.05, 0),
    (-14.7, 14.7, 0),
    (14.7, 14.7, 0),
    (18.05, 0, 0),
    (14.7, -14.7, 0),
    (0, -18.05, 0),
]))
chamfer.Size = 0.8
doc.recompute()

chamfer2 = body.newObject("PartDesign::Chamfer", "Chamfer001")
chamfer2.Base = (chamfer, edges_at(chamfer, [
    (7.4, 18.05, 2.982),
    (-7.4, 18.05, 2.982),
    (-7.4, -18.05, 2.982),
    (7.4, -18.05, 2.982),
]))
chamfer2.Size = 0.4

doc.recompute()
